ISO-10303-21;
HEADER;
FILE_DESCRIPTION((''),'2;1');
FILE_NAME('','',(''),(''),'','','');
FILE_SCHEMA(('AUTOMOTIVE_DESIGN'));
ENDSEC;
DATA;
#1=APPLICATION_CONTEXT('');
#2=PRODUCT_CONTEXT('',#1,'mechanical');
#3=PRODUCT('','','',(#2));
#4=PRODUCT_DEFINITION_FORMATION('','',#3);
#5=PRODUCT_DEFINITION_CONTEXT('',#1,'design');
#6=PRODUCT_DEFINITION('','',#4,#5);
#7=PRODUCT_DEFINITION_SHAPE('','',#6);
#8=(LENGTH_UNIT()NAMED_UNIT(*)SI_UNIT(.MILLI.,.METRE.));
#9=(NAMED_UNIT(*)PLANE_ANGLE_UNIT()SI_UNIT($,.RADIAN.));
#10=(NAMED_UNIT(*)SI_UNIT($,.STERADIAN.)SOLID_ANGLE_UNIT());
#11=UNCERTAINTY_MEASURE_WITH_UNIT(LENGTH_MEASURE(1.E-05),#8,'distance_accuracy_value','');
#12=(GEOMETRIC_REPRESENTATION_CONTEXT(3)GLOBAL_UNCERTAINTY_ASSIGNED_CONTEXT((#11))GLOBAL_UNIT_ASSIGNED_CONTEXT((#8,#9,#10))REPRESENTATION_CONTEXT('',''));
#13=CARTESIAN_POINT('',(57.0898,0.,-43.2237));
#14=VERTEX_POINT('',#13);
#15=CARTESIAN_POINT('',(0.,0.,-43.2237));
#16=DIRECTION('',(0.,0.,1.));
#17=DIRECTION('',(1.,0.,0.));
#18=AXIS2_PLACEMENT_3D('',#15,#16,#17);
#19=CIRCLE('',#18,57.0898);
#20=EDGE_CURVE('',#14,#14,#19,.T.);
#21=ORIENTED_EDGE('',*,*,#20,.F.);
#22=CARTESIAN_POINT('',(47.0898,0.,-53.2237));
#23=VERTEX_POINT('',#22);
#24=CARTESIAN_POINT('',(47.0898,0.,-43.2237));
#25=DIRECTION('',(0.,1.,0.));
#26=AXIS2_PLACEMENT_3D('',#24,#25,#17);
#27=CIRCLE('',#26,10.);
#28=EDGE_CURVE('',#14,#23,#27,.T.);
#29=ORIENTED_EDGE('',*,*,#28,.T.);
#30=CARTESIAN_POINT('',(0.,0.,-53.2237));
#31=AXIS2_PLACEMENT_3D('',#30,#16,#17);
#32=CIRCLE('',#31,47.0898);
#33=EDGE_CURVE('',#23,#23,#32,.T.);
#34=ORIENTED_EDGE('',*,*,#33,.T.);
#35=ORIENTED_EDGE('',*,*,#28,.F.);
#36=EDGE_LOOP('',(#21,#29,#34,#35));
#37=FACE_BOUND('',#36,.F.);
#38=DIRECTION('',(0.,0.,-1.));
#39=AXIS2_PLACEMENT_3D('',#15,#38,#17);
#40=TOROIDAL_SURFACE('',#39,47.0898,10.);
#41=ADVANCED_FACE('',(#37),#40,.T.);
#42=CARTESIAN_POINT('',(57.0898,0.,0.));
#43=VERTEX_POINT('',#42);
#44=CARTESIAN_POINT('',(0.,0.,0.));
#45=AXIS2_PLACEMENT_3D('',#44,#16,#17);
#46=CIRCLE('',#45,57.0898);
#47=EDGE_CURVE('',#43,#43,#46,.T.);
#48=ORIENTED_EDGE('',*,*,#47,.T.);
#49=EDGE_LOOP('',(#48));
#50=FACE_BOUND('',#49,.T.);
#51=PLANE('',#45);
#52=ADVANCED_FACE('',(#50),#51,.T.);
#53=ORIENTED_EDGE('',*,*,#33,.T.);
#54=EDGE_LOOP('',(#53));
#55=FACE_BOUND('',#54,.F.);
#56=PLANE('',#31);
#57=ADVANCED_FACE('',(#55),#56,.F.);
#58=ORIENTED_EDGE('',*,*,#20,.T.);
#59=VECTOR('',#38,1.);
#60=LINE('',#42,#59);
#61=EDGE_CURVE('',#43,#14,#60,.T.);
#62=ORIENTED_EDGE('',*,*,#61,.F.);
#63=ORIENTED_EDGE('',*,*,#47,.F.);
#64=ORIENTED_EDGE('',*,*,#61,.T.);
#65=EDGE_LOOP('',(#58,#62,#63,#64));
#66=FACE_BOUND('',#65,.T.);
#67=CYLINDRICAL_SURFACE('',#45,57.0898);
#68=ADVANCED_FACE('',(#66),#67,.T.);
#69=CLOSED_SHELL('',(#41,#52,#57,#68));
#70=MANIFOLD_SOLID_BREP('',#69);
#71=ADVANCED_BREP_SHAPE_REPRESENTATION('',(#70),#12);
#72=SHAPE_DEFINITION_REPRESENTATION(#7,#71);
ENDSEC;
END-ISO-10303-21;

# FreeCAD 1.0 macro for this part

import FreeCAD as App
import Part
import Sketcher

V = App.Vector
Q = App.Units.Quantity


def edges_at(feature, points):
    """Names of the edges that pass closest to the given points."""
    edges = feature.Shape.Edges
    near = lambda p: min(range(len(edges)), key=lambda i: edges[i].distToShape(Part.Vertex(*p))[0])
    return sorted({f"Edge{near(p) + 1}" for p in points})

doc = App.newDocument("Part")
body = doc.addObject("PartDesign::Body", "Body")

sketch1 = doc.addObject("Sketcher::SketchObject", "Sketch")
body.addObject(sketch1)
sketch1.AttachmentSupport = (doc.XY_Plane, [""])
sketch1.MapMode = "FlatFace"
sketch1.addGeometry(Part.Circle(V(0, 0, 0), V(0, 0, 1), 57.0898), False)
sketch1.addConstraint([
    Sketcher.Constraint("Coincident", 0, 3, -1, 1),
    Sketcher.Constraint("Diameter", 0, Q("114.1796 mm")),
])
pad1 = doc.addObject("PartDesign::Pad", "Pad")
body.addObject(pad1)
pad1.Profile = sketch1
pad1.Length = 53.2237
pad1.Reversed = True
doc.recompute()

fillet = doc.addObject("PartDesign::Fillet", "Fillet")
body.addObject(fillet)
fillet.Base = (pad1, edges_at(pad1, [(-57.09, 0, -53.224)]))
fillet.Radius = 10

doc.recompute()
